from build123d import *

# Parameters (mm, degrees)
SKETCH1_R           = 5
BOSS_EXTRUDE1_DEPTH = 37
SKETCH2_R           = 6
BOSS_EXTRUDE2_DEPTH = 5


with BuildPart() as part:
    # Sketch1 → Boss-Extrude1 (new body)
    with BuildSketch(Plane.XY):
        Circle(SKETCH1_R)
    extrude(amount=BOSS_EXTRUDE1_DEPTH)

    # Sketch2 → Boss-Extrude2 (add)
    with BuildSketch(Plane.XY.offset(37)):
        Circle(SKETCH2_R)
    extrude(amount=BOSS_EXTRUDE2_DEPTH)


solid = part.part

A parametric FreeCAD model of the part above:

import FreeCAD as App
import Part
import Sketcher

V = App.Vector

doc = App.newDocument("Part")
params = doc.addObject("Spreadsheet::Sheet", "Params")
for row, (alias, value) in enumerate([
    ("sketch1_diameter", "10 mm"),
    ("pad1_length", "37 mm"),
    ("sketch2_diameter", "12 mm"),
    ("pad2_length", "5 mm"),
], start=1):
    params.set(f"A{row}", alias)
    params.set(f"B{row}", "=" + value)
    params.setAlias(f"B{row}", alias)

body = doc.addObject("PartDesign::Body", "Body")

sketch1 = doc.addObject("Sketcher::SketchObject", "Sketch")
body.addObject(sketch1)
sketch1.AttachmentSupport = (doc.XY_Plane, [""])
sketch1.MapMode = "FlatFace"
sketch1.addGeometry(Part.Circle(V(0, 0, 0), V(0, 0, 1), 5), False)
sketch1.addConstraint([
    Sketcher.Constraint("Coincident", 0, 3, -1, 1),
    Sketcher.Constraint("Diameter", 0, 10.0),
])
sketch1.setExpression("Constraints[1]", "Params.sketch1_diameter")
pad1 = doc.addObject("PartDesign::Pad", "Pad")
body.addObject(pad1)
pad1.Profile = sketch1
pad1.setExpression("Length", "Params.pad1_length")

sketch2 = doc.addObject("Sketcher::SketchObject", "Sketch001")
body.addObject(sketch2)
sketch2.AttachmentSupport = (doc.XY_Plane, [""])
sketch2.MapMode = "FlatFace"
sketch2.AttachmentOffset = App.Placement(V(0, 0, 37), App.Rotation())
sketch2.addGeometry(Part.Circle(V(0, 0, 0), V(0, 0, 1), 6), False)
sketch2.addConstraint([
    Sketcher.Constraint("Coincident", 0, 3, -1, 1),
    Sketcher.Constraint("Diameter", 0, 12.0),
])
sketch2.setExpression("Constraints[1]", "Params.sketch2_diameter")
pad2 = doc.addObject("PartDesign::Pad", "Pad001")
body.addObject(pad2)
pad2.Profile = sketch2
pad2.setExpression("Length", "Params.pad2_length")

doc.recompute()
